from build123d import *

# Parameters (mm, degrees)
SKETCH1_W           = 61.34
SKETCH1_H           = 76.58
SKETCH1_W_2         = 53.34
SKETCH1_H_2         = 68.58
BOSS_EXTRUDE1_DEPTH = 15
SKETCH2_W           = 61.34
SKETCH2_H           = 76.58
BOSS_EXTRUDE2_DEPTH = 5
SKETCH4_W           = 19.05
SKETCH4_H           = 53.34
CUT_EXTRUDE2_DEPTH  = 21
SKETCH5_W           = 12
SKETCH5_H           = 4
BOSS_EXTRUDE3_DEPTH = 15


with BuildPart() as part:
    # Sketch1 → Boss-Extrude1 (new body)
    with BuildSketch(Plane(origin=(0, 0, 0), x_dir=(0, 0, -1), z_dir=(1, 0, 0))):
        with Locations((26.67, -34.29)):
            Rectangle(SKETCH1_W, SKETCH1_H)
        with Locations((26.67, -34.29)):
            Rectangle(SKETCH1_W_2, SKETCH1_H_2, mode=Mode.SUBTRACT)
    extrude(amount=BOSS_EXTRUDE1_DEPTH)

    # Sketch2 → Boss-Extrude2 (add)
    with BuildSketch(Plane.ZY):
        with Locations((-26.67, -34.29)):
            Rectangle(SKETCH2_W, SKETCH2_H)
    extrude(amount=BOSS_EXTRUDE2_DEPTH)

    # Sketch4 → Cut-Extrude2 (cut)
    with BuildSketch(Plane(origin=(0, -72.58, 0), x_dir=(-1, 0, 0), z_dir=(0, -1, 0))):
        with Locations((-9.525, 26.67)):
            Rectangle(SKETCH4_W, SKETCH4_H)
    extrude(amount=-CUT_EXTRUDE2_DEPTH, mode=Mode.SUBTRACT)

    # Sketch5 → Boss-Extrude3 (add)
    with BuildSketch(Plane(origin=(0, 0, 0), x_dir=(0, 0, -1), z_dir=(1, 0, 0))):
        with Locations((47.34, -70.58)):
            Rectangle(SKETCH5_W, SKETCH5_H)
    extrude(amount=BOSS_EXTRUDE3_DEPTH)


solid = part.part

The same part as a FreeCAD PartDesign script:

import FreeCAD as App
import Part
import Sketcher
from FreeCAD import Vector

doc = App.newDocument("Part")
params = doc.addObject("Spreadsheet::Sheet", "Params")
for row, (alias, value) in enumerate([
    ("sketch1_width", "76.58 mm"),
    ("sketch1_height", "61.34 mm"),
    ("pad1_length", "15 mm"),
    ("sketch2_width", "76.58 mm"),
    ("sketch2_height", "61.34 mm"),
    ("pad2_length", "5 mm"),
    ("sketch3_width", "19.05 mm"),
    ("sketch3_height", "53.34 mm"),
    ("pocket1_length", "21 mm"),
    ("sketch4_width", "4 mm"),
    ("sketch4_height", "12 mm"),
    ("pad3_length", "15 mm"),
], start=1):
    params.set(f"A{row}", alias)
    params.set(f"B{row}", "=" + value)
    params.setAlias(f"B{row}", alias)

body = doc.addObject("PartDesign::Body", "Body")

# Sketch on YZ plane
sketch1 = body.newObject("Sketcher::SketchObject", "Sketch")
sketch1.AttachmentSupport = (doc.getObject("YZ_Plane"), [""])
sketch1.MapMode = "FlatFace"
sketch1.addGeometry([
    Part.LineSegment(Vector(4, 4, 0), Vector(-73, 4, 0)),  # 0
    Part.LineSegment(Vector(-73, 4, 0), Vector(-73, -57, 0)),  # 1
    Part.LineSegment(Vector(-73, -57, 0), Vector(4, -57, 0)),  # 2
    Part.LineSegment(Vector(4, -57, 0), Vector(4, 4, 0)),  # 3
    Part.LineSegment(Vector(-69, -53, 0), Vector(-69, 0, 0)),  # 4
    Part.LineSegment(Vector(-69, 0, 0), Vector(0, 0, 0)),  # 5
    Part.LineSegment(Vector(0, 0, 0), Vector(0, -53, 0)),  # 6
    Part.LineSegment(Vector(0, -53, 0), Vector(-69, -53, 0)),  # 7
], False)
sketch1.addConstraint([
    Sketcher.Constraint("Coincident", 0, 2, 1, 1),
    Sketcher.Constraint("Coincident", 1, 2, 2, 1),
    Sketcher.Constraint("Coincident", 2, 2, 3, 1),
    Sketcher.Constraint("Coincident", 3, 2, 0, 1),
    Sketcher.Constraint("Coincident", 4, 2, 5, 1),
    Sketcher.Constraint("Coincident", 5, 2, 6, 1),
    Sketcher.Constraint("Coincident", 6, 2, 7, 1),
    Sketcher.Constraint("Coincident", 7, 2, 4, 1),
    Sketcher.Constraint("Horizontal", 0),
    Sketcher.Constraint("Vertical", 1),
    Sketcher.Constraint("Horizontal", 2),
    Sketcher.Constraint("Vertical", 3),
    Sketcher.Constraint("Vertical", 4),
    Sketcher.Constraint("Horizontal", 5),
    Sketcher.Constraint("Vertical", 6),
    Sketcher.Constraint("Horizontal", 7),
    Sketcher.Constraint("Coincident", 5, 2, -1, 1),
    Sketcher.Constraint("DistanceY", -1, 1, 0, 2, 4.0),
    Sketcher.Constraint("DistanceX", -1, 1, 2, 2, 4.0),
    Sketcher.Constraint("DistanceX", 0, 2, 4, 2, 4.0),
    Sketcher.Constraint("DistanceY", 2, 2, 6, 2, 4.0),
    Sketcher.Constraint("DistanceX", 0, 2, 0, 1, 76.58),
    Sketcher.Constraint("DistanceY", 1, 2, 1, 1, 61.34),
])
sketch1.setExpression("Constraints[21]", "Params.sketch1_width")
sketch1.setExpression("Constraints[22]", "Params.sketch1_height")
pad1 = body.newObject("PartDesign::Pad", "Pad")
pad1.Profile = sketch1
pad1.setExpression("Length", "Params.pad1_length")

# Sketch on YZ plane
sketch2 = body.newObject("Sketcher::SketchObject", "Sketch001")
sketch2.AttachmentSupport = (doc.getObject("YZ_Plane"), [""])
sketch2.MapMode = "FlatFace"
sketch2.addGeometry([
    Part.LineSegment(Vector(4, -57, 0), Vector(-73, -57, 0)),
    Part.LineSegment(Vector(-73, -57, 0), Vector(-73, 4, 0)),
    Part.LineSegment(Vector(-73, 4, 0), Vector(4, 4, 0)),
    Part.LineSegment(Vector(4, 4, 0), Vector(4, -57, 0)),
], False)
sketch2.addConstraint([
    Sketcher.Constraint("Coincident", 0, 2, 1, 1),
    Sketcher.Constraint("Coincident", 1, 2, 2, 1),
    Sketcher.Constraint("Coincident", 2, 2, 3, 1),
    Sketcher.Constraint("Coincident", 3, 2, 0, 1),
    Sketcher.Constraint("Horizontal", 0),
    Sketcher.Constraint("Vertical", 1),
    Sketcher.Constraint("Horizontal", 2),
    Sketcher.Constraint("Vertical", 3),
    Sketcher.Constraint("DistanceY", -1, 1, 1, 2, 4.0),
    Sketcher.Constraint("DistanceX", -1, 1, 2, 2, 4.0),
    Sketcher.Constraint("DistanceX", 0, 2, 0, 1, 76.58),
    Sketcher.Constraint("DistanceY", 1, 1, 1, 2, 61.34),
])
sketch2.setExpression("Constraints[10]", "Params.sketch2_width")
sketch2.setExpression("Constraints[11]", "Params.sketch2_height")
pad2 = body.newObject("PartDesign::Pad", "Pad001")
pad2.Profile = sketch2
pad2.setExpression("Length", "Params.pad2_length")
pad2.Reversed = True

# Sketch on XZ plane
sketch3 = body.newObject("Sketcher::SketchObject", "Sketch002")
sketch3.AttachmentSupport = (doc.getObject("XZ_Plane"), [""])
sketch3.MapMode = "FlatFace"
sketch3.AttachmentOffset = App.Placement(Vector(0, 0, 72.58), App.Rotation())
sketch3.addGeometry([
    Part.LineSegment(Vector(19, -53, 0), Vector(19, 0, 0)),
    Part.LineSegment(Vector(19, 0, 0), Vector(0, 0, 0)),
    Part.LineSegment(Vector(0, 0, 0), Vector(0, -53, 0)),
    Part.LineSegment(Vector(0, -53, 0), Vector(19, -53, 0)),
], False)
sketch3.addConstraint([
    Sketcher.Constraint("Coincident", 0, 2, 1, 1),
    Sketcher.Constraint("Coincident", 1, 2, 2, 1),
    Sketcher.Constraint("Coincident", 2, 2, 3, 1),
    Sketcher.Constraint("Coincident", 3, 2, 0, 1),
    Sketcher.Constraint("Vertical", 0),
    Sketcher.Constraint("Horizontal", 1),
    Sketcher.Constraint("Vertical", 2),
    Sketcher.Constraint("Horizontal", 3),
    Sketcher.Constraint("Coincident", 1, 2, -1, 1),
    Sketcher.Constraint("DistanceX", 1, 2, 1, 1, 19.05),
    Sketcher.Constraint("DistanceY", 0, 1, 0, 2, 53.34),
])
sketch3.setExpression("Constraints[9]", "Params.sketch3_width")
sketch3.setExpression("Constraints[10]", "Params.sketch3_height")
pocket1 = body.newObject("PartDesign::Pocket", "Pocket")
pocket1.Profile = sketch3
pocket1.setExpression("Length", "Params.pocket1_length")

# Sketch on YZ plane
sketch4 = body.newObject("Sketcher::SketchObject", "Sketch003")
sketch4.AttachmentSupport = (doc.getObject("YZ_Plane"), [""])
sketch4.MapMode = "FlatFace"
sketch4.addGeometry([
    Part.LineSegment(Vector(-68.6, -41.3, 0), Vector(-72.6, -41.3, 0)),
    Part.LineSegment(Vector(-72.6, -41.3, 0), Vector(-72.6, -53.3, 0)),
    Part.LineSegment(Vector(-72.6, -53.3, 0), Vector(-68.6, -53.3, 0)),
    Part.LineSegment(Vector(-68.6, -53.3, 0), Vector(-68.6, -41.3, 0)),
], False)
sketch4.addConstraint([
    Sketcher.Constraint("Coincident", 0, 2, 1, 1),
    Sketcher.Constraint("Coincident", 1, 2, 2, 1),
    Sketcher.Constraint("Coincident", 2, 2, 3, 1),
    Sketcher.Constraint("Coincident", 3, 2, 0, 1),
    Sketcher.Constraint("Horizontal", 0),
    Sketcher.Constraint("Vertical", 1),
    Sketcher.Constraint("Horizontal", 2),
    Sketcher.Constraint("Vertical", 3),
    Sketcher.Constraint("DistanceX", 0, 2, 0, 1, 4.0),
    Sketcher.Constraint("DistanceY", 1, 2, 1, 1, 12.0),
    Sketcher.Constraint("DistanceX", 0, 2, -1, 1, 72.58),
    Sketcher.Constraint("DistanceY", 0, 2, -1, 1, 41.34),
])
sketch4.setExpression("Constraints[8]", "Params.sketch4_width")
sketch4.setExpression("Constraints[9]", "Params.sketch4_height")
pad3 = body.newObject("PartDesign::Pad", "Pad002")
pad3.Profile = sketch4
pad3.setExpression("Length", "Params.pad3_length")

doc.recompute()
